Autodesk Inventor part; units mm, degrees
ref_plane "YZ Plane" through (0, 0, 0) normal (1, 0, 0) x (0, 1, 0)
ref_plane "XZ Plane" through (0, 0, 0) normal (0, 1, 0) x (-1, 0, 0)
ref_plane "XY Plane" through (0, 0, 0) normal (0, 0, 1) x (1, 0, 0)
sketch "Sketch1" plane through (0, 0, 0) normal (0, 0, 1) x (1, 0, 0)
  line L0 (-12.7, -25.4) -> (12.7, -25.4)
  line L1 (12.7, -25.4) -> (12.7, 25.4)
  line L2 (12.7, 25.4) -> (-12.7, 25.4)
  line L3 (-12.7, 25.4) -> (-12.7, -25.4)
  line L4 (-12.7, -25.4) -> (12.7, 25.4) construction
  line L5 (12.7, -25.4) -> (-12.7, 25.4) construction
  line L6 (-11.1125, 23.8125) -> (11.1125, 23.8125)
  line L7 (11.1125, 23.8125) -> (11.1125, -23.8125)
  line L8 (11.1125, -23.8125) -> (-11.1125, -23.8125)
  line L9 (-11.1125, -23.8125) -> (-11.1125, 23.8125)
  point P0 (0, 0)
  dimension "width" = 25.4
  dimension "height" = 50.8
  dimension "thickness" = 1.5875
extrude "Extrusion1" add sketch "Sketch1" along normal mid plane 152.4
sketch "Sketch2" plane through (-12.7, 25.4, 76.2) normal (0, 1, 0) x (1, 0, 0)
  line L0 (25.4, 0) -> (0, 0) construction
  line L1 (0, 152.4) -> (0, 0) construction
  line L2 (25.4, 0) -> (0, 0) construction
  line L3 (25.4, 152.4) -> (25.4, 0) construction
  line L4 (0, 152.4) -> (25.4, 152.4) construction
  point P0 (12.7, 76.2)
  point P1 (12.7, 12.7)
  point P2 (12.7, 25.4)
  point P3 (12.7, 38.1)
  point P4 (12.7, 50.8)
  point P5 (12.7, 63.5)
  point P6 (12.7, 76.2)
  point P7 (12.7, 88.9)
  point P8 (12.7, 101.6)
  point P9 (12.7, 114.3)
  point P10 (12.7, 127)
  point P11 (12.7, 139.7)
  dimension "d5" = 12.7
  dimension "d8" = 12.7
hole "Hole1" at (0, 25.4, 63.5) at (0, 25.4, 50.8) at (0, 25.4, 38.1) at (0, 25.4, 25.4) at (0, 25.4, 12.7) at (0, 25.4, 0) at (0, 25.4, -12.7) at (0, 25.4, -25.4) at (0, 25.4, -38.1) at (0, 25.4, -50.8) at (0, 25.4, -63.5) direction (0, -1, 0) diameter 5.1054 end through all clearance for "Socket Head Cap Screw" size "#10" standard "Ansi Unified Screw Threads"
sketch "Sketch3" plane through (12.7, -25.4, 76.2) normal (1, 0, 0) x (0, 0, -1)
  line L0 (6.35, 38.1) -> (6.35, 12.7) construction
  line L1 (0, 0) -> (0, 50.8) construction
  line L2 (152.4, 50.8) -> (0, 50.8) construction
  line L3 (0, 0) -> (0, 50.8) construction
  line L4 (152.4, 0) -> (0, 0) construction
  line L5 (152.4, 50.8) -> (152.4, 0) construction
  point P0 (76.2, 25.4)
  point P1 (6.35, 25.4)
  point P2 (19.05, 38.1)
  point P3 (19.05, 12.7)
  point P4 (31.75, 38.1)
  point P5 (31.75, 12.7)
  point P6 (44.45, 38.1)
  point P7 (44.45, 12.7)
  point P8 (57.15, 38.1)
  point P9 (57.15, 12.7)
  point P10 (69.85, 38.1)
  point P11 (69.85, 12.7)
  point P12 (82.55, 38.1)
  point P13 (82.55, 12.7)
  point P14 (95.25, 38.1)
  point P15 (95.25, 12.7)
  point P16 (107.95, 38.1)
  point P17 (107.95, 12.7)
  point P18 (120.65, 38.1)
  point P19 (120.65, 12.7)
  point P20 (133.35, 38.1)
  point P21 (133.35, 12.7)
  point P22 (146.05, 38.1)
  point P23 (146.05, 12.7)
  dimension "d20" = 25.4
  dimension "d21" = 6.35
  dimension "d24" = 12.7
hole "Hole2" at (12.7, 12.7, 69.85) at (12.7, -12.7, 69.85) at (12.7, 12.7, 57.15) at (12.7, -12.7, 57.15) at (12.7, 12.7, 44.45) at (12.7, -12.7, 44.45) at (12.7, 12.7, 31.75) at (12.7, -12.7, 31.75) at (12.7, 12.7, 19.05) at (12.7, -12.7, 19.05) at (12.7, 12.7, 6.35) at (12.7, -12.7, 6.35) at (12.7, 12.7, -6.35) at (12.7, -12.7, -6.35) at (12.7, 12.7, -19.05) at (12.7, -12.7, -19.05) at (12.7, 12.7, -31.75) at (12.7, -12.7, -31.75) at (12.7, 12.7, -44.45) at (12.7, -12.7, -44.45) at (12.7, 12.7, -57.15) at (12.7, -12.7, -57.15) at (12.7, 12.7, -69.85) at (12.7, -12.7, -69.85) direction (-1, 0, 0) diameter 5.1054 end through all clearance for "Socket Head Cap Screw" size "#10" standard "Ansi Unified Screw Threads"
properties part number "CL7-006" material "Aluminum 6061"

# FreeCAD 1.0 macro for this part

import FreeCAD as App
import Part
import Sketcher
from FreeCAD import Vector
Q = App.Units.Quantity

doc = App.newDocument("Part")
body = doc.addObject("PartDesign::Body", "Body")

# Sketch on XY plane
sketch1 = body.newObject("Sketcher::SketchObject", "Sketch")
sketch1.AttachmentSupport = (doc.getObject("XY_Plane"), [""])
sketch1.MapMode = "FlatFace"
sketch1.addGeometry([
    Part.LineSegment(Vector(-13, 25, 0), Vector(-13, -25, 0)),  # 0
    Part.LineSegment(Vector(-13, -25, 0), Vector(13, -25, 0)),  # 1
    Part.LineSegment(Vector(13, -25, 0), Vector(13, 25, 0)),  # 2
    Part.LineSegment(Vector(13, 25, 0), Vector(-13, 25, 0)),  # 3
    Part.LineSegment(Vector(-11, -24, 0), Vector(-11, 24, 0)),  # 4
    Part.LineSegment(Vector(-11, 24, 0), Vector(11, 24, 0)),  # 5
    Part.LineSegment(Vector(11, 24, 0), Vector(11, -24, 0)),  # 6
    Part.LineSegment(Vector(11, -24, 0), Vector(-11, -24, 0)),  # 7
], False)
sketch1.addConstraint([
    Sketcher.Constraint("Coincident", 0, 2, 1, 1),
    Sketcher.Constraint("Coincident", 1, 2, 2, 1),
    Sketcher.Constraint("Coincident", 2, 2, 3, 1),
    Sketcher.Constraint("Coincident", 3, 2, 0, 1),
    Sketcher.Constraint("Coincident", 4, 2, 5, 1),
    Sketcher.Constraint("Coincident", 5, 2, 6, 1),
    Sketcher.Constraint("Coincident", 6, 2, 7, 1),
    Sketcher.Constraint("Coincident", 7, 2, 4, 1),
    Sketcher.Constraint("Vertical", 0),
    Sketcher.Constraint("Horizontal", 1),
    Sketcher.Constraint("Vertical", 2),
    Sketcher.Constraint("Horizontal", 3),
    Sketcher.Constraint("Vertical", 4),
    Sketcher.Constraint("Horizontal", 5),
    Sketcher.Constraint("Vertical", 6),
    Sketcher.Constraint("Horizontal", 7),
    Sketcher.Constraint("Symmetric", 0, 2, 2, 2, -1, 1),
    Sketcher.Constraint("Symmetric", 4, 2, 6, 2, -1, 1),
    Sketcher.Constraint("DistanceX", 1, 1, 1, 2, Q("1 in")),
    Sketcher.Constraint("DistanceY", 0, 2, 0, 1, Q("2 in")),
    Sketcher.Constraint("DistanceX", 3, 2, 4, 2, Q("0.0625 in")),
    Sketcher.Constraint("DistanceY", 4, 2, 3, 2, Q("0.0625 in")),
])
pad1 = body.newObject("PartDesign::Pad", "Pad")
pad1.Profile = sketch1
pad1.Length = Q("6 in")
pad1.Midplane = True

# Sketch on XZ plane
sketch2 = body.newObject("Sketcher::SketchObject", "Sketch001")
sketch2.AttachmentSupport = (doc.getObject("XZ_Plane"), [""])
sketch2.MapMode = "FlatFace"
sketch2.AttachmentOffset = App.Placement(Vector(0, 0, -1 * 25.4), App.Rotation())
sketch2.addGeometry([
    Part.Circle(Vector(0, 63.5, 0), Vector(0, 0, 1), 2.6),  # 0
    Part.Circle(Vector(0, 50.8, 0), Vector(0, 0, 1), 2.6),  # 1
    Part.Circle(Vector(0, 38.1, 0), Vector(0, 0, 1), 2.6),  # 2
    Part.Circle(Vector(0, 25.4, 0), Vector(0, 0, 1), 2.6),  # 3
    Part.Circle(Vector(0, 12.7, 0), Vector(0, 0, 1), 2.6),  # 4
    Part.Circle(Vector(0, 0, 0), Vector(0, 0, 1), 2.6),  # 5
    Part.Circle(Vector(0, -12.7, 0), Vector(0, 0, 1), 2.6),  # 6
    Part.Circle(Vector(0, -25.4, 0), Vector(0, 0, 1), 2.6),  # 7
    Part.Circle(Vector(0, -38.1, 0), Vector(0, 0, 1), 2.6),  # 8
    Part.Circle(Vector(0, -50.8, 0), Vector(0, 0, 1), 2.6),  # 9
    Part.Circle(Vector(0, -63.5, 0), Vector(0, 0, 1), 2.6),  # 10
], False)
sketch2.addConstraint([
    Sketcher.Constraint("Coincident", 5, 3, -1, 1),
    Sketcher.Constraint("Equal", 0, 1),
    Sketcher.Constraint("Equal", 1, 2),
    Sketcher.Constraint("Equal", 2, 3),
    Sketcher.Constraint("Equal", 3, 4),
    Sketcher.Constraint("Equal", 4, 5),
    Sketcher.Constraint("Equal", 5, 6),
    Sketcher.Constraint("Equal", 6, 7),
    Sketcher.Constraint("Equal", 7, 8),
    Sketcher.Constraint("Equal", 8, 9),
    Sketcher.Constraint("Equal", 9, 10),
    Sketcher.Constraint("Symmetric", 4, 3, 6, 3, -1, 1),
    Sketcher.Constraint("Symmetric", 3, 3, 7, 3, -1, 1),
    Sketcher.Constraint("Symmetric", 2, 3, 8, 3, -1, 1),
    Sketcher.Constraint("Symmetric", 1, 3, 9, 3, -1, 1),
    Sketcher.Constraint("Symmetric", 0, 3, 10, 3, -1, 1),
    Sketcher.Constraint("PointOnObject", 0, 3, -2),
    Sketcher.Constraint("PointOnObject", 1, 3, -2),
    Sketcher.Constraint("PointOnObject", 2, 3, -2),
    Sketcher.Constraint("PointOnObject", 3, 3, -2),
    Sketcher.Constraint("PointOnObject", 4, 3, -2),
    Sketcher.Constraint("Diameter", 0, Q("0.201 in")),
    Sketcher.Constraint("DistanceY", -1, 1, 1, 3, Q("2 in")),
    Sketcher.Constraint("DistanceY", -1, 1, 3, 3, Q("1 in")),
    Sketcher.Constraint("DistanceY", 2, 3, 0, 3, Q("1 in")),
    Sketcher.Constraint("DistanceY", 4, 3, 2, 3, Q("1 in")),
    Sketcher.Constraint("DistanceY", 6, 3, 4, 3, Q("1 in")),
])
doc.recompute()
hole = body.newObject("PartDesign::Hole", "Hole")
hole.Profile = sketch2
hole.ThreadType = "None"
hole.Diameter = Q("0.201 in")
hole.DepthType = "ThroughAll"
hole.Reversed = True

# Sketch on YZ plane
sketch3 = body.newObject("Sketcher::SketchObject", "Sketch002")
sketch3.AttachmentSupport = (doc.getObject("YZ_Plane"), [""])
sketch3.MapMode = "FlatFace"
sketch3.AttachmentOffset = App.Placement(Vector(0, 0, 0.5 * 25.4), App.Rotation())
sketch3.addGeometry([
    Part.Circle(Vector(12.7, 69.8, 0), Vector(0, 0, 1), 2.6),  # 0
    Part.Circle(Vector(-12.7, 69.8, 0), Vector(0, 0, 1), 2.6),  # 1
    Part.Circle(Vector(12.7, 57.1, 0), Vector(0, 0, 1), 2.6),  # 2
    Part.Circle(Vector(-12.7, 57.1, 0), Vector(0, 0, 1), 2.6),  # 3
    Part.Circle(Vector(12.7, 44.5, 0), Vector(0, 0, 1), 2.6),  # 4
    Part.Circle(Vector(-12.7, 44.5, 0), Vector(0, 0, 1), 2.6),  # 5
    Part.Circle(Vector(12.7, 31.8, 0), Vector(0, 0, 1), 2.6),  # 6
    Part.Circle(Vector(-12.7, 31.8, 0), Vector(0, 0, 1), 2.6),  # 7
    Part.Circle(Vector(12.7, 19.1, 0), Vector(0, 0, 1), 2.6),  # 8
    Part.Circle(Vector(-12.7, 19.1, 0), Vector(0, 0, 1), 2.6),  # 9
    Part.Circle(Vector(12.7, 6.3, 0), Vector(0, 0, 1), 2.6),  # 10
    Part.Circle(Vector(-12.7, 6.3, 0), Vector(0, 0, 1), 2.6),  # 11
    Part.Circle(Vector(12.7, -6.3, 0), Vector(0, 0, 1), 2.6),  # 12
    Part.Circle(Vector(-12.7, -6.3, 0), Vector(0, 0, 1), 2.6),  # 13
    Part.Circle(Vector(12.7, -19.1, 0), Vector(0, 0, 1), 2.6),  # 14
    Part.Circle(Vector(-12.7, -19.1, 0), Vector(0, 0, 1), 2.6),  # 15
    Part.Circle(Vector(12.7, -31.8, 0), Vector(0, 0, 1), 2.6),  # 16
    Part.Circle(Vector(-12.7, -31.8, 0), Vector(0, 0, 1), 2.6),  # 17
    Part.Circle(Vector(12.7, -44.5, 0), Vector(0, 0, 1), 2.6),  # 18
    Part.Circle(Vector(-12.7, -44.5, 0), Vector(0, 0, 1), 2.6),  # 19
    Part.Circle(Vector(12.7, -57.1, 0), Vector(0, 0, 1), 2.6),  # 20
    Part.Circle(Vector(-12.7, -57.1, 0), Vector(0, 0, 1), 2.6),  # 21
    Part.Circle(Vector(12.7, -69.8, 0), Vector(0, 0, 1), 2.6),  # 22
    Part.Circle(Vector(-12.7, -69.8, 0), Vector(0, 0, 1), 2.6),  # 23
], False)
sketch3.addConstraint([
    Sketcher.Constraint("Equal", 0, 1),
    Sketcher.Constraint("Equal", 1, 2),
    Sketcher.Constraint("Equal", 2, 3),
    Sketcher.Constraint("Equal", 3, 4),
    Sketcher.Constraint("Equal", 4, 5),
    Sketcher.Constraint("Equal", 5, 6),
    Sketcher.Constraint("Equal", 6, 7),
    Sketcher.Constraint("Equal", 7, 8),
    Sketcher.Constraint("Equal", 8, 9),
    Sketcher.Constraint("Equal", 9, 10),
    Sketcher.Constraint("Equal", 10, 11),
    Sketcher.Constraint("Equal", 11, 12),
    Sketcher.Constraint("Equal", 12, 13),
    Sketcher.Constraint("Equal", 13, 14),
    Sketcher.Constraint("Equal", 14, 15),
    Sketcher.Constraint("Equal", 15, 16),
    Sketcher.Constraint("Equal", 16, 17),
    Sketcher.Constraint("Equal", 17, 18),
    Sketcher.Constraint("Equal", 18, 19),
    Sketcher.Constraint("Equal", 19, 20),
    Sketcher.Constraint("Equal", 20, 21),
    Sketcher.Constraint("Equal", 21, 22),
    Sketcher.Constraint("Equal", 22, 23),
    Sketcher.Constraint("Symmetric", 11, 3, 12, 3, -1, 1),
    Sketcher.Constraint("Symmetric", 10, 3, 13, 3, -1, 1),
    Sketcher.Constraint("Symmetric", 9, 3, 14, 3, -1, 1),
    Sketcher.Constraint("Symmetric", 8, 3, 15, 3, -1, 1),
    Sketcher.Constraint("Symmetric", 7, 3, 16, 3, -1, 1),
    Sketcher.Constraint("Symmetric", 6, 3, 17, 3, -1, 1),
    Sketcher.Constraint("Symmetric", 5, 3, 18, 3, -1, 1),
    Sketcher.Constraint("Symmetric", 4, 3, 19, 3, -1, 1),
    Sketcher.Constraint("Symmetric", 3, 3, 20, 3, -1, 1),
    Sketcher.Constraint("Symmetric", 2, 3, 21, 3, -1, 1),
    Sketcher.Constraint("Symmetric", 1, 3, 22, 3, -1, 1),
    Sketcher.Constraint("Symmetric", 0, 3, 23, 3, -1, 1),
    Sketcher.Constraint("Symmetric", 0, 3, 1, 3, -2),
    Sketcher.Constraint("Symmetric", 2, 3, 3, 3, -2),
    Sketcher.Constraint("Symmetric", 4, 3, 5, 3, -2),
    Sketcher.Constraint("Symmetric", 6, 3, 7, 3, -2),
    Sketcher.Constraint("Symmetric", 8, 3, 9, 3, -2),
    Sketcher.Constraint("Symmetric", 10, 3, 11, 3, -2),
    Sketcher.Constraint("Vertical", 0, 3, 2, 3),
    Sketcher.Constraint("Vertical", 2, 3, 4, 3),
    Sketcher.Constraint("Vertical", 4, 3, 6, 3),
    Sketcher.Constraint("Vertical", 6, 3, 8, 3),
    Sketcher.Constraint("Vertical", 8, 3, 10, 3),
    Sketcher.Constraint("Diameter", 0, Q("0.201 in")),
    Sketcher.Constraint("DistanceX", 1, 3, 0, 3, Q("1 in")),
    Sketcher.Constraint("DistanceY", 4, 3, 0, 3, Q("1 in")),
    Sketcher.Constraint("DistanceY", 6, 3, 2, 3, Q("1 in")),
    Sketcher.Constraint("DistanceY", 8, 3, 4, 3, Q("1 in")),
    Sketcher.Constraint("DistanceY", 10, 3, 6, 3, Q("1 in")),
    Sketcher.Constraint("DistanceY", 12, 3, 8, 3, Q("1 in")),
    Sketcher.Constraint("DistanceY", 2, 3, 0, 3, Q("0.5 in")),
])
doc.recompute()
hole2 = body.newObject("PartDesign::Hole", "Hole001")
hole2.Profile = sketch3
hole2.ThreadType = "None"
hole2.Diameter = Q("0.201 in")
hole2.DepthType = "ThroughAll"

doc.recompute()
